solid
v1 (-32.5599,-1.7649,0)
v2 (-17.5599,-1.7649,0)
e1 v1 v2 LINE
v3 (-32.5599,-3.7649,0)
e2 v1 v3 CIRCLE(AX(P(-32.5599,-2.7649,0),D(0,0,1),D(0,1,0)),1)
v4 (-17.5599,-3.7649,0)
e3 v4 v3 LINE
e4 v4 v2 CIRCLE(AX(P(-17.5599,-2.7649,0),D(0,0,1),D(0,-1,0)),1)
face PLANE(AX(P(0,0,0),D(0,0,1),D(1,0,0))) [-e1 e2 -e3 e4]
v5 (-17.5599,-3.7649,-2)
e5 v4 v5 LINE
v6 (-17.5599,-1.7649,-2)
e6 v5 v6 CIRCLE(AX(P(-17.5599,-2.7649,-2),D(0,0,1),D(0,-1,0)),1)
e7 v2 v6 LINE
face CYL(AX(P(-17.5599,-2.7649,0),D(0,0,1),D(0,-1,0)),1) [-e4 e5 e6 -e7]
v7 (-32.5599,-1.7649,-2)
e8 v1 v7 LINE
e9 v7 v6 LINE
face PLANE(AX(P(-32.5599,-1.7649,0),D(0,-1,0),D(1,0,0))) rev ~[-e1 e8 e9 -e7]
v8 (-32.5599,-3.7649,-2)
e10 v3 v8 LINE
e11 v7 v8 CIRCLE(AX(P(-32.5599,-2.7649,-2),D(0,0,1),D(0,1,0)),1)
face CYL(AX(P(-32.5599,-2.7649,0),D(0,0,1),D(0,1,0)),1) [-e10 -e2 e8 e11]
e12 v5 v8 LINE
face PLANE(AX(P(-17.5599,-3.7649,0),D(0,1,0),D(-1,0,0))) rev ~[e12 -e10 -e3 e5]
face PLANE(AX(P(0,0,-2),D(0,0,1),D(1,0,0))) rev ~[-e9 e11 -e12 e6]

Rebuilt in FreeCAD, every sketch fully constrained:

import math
import FreeCAD as App
import Part
import Sketcher
from FreeCAD import Vector

doc = App.newDocument("Part")
body = doc.addObject("PartDesign::Body", "Body")

# Sketch on XY plane
sketch1 = body.newObject("Sketcher::SketchObject", "Sketch")
sketch1.AttachmentSupport = (doc.getObject("XY_Plane"), [""])
sketch1.MapMode = "FlatFace"
sketch1.addGeometry([
    Part.LineSegment(Vector(-17.5599, -1.7649, 0), Vector(-32.5599, -1.7649, 0)),
    Part.ArcOfCircle(Part.Circle(Vector(-32.5599, -2.7649, 0), Vector(0, 0, 1), 1), math.radians(90), math.radians(270)),
    Part.LineSegment(Vector(-32.5599, -3.7649, 0), Vector(-17.5599, -3.7649, 0)),
    Part.ArcOfCircle(Part.Circle(Vector(-17.5599, -2.7649, 0), Vector(0, 0, 1), 1), math.radians(-90), math.radians(90)),
], False)
sketch1.addConstraint([
    Sketcher.Constraint("Tangent", 0, 2, 1, 1),
    Sketcher.Constraint("Tangent", 1, 2, 2, 1),
    Sketcher.Constraint("Tangent", 2, 2, 3, 1),
    Sketcher.Constraint("Tangent", 3, 2, 0, 1),
    Sketcher.Constraint("Horizontal", 0),
    Sketcher.Constraint("Horizontal", 2),
    Sketcher.Constraint("Radius", 1, 1.0),
    Sketcher.Constraint("DistanceX", 0, 2, 0, 1, 15.0),
    Sketcher.Constraint("DistanceX", 1, 3, -1, 1, 32.56),
    Sketcher.Constraint("DistanceY", 1, 3, -1, 1, 2.765),
])
pad1 = body.newObject("PartDesign::Pad", "Pad")
pad1.Profile = sketch1
pad1.Length = 2
pad1.Reversed = True

doc.recompute()
